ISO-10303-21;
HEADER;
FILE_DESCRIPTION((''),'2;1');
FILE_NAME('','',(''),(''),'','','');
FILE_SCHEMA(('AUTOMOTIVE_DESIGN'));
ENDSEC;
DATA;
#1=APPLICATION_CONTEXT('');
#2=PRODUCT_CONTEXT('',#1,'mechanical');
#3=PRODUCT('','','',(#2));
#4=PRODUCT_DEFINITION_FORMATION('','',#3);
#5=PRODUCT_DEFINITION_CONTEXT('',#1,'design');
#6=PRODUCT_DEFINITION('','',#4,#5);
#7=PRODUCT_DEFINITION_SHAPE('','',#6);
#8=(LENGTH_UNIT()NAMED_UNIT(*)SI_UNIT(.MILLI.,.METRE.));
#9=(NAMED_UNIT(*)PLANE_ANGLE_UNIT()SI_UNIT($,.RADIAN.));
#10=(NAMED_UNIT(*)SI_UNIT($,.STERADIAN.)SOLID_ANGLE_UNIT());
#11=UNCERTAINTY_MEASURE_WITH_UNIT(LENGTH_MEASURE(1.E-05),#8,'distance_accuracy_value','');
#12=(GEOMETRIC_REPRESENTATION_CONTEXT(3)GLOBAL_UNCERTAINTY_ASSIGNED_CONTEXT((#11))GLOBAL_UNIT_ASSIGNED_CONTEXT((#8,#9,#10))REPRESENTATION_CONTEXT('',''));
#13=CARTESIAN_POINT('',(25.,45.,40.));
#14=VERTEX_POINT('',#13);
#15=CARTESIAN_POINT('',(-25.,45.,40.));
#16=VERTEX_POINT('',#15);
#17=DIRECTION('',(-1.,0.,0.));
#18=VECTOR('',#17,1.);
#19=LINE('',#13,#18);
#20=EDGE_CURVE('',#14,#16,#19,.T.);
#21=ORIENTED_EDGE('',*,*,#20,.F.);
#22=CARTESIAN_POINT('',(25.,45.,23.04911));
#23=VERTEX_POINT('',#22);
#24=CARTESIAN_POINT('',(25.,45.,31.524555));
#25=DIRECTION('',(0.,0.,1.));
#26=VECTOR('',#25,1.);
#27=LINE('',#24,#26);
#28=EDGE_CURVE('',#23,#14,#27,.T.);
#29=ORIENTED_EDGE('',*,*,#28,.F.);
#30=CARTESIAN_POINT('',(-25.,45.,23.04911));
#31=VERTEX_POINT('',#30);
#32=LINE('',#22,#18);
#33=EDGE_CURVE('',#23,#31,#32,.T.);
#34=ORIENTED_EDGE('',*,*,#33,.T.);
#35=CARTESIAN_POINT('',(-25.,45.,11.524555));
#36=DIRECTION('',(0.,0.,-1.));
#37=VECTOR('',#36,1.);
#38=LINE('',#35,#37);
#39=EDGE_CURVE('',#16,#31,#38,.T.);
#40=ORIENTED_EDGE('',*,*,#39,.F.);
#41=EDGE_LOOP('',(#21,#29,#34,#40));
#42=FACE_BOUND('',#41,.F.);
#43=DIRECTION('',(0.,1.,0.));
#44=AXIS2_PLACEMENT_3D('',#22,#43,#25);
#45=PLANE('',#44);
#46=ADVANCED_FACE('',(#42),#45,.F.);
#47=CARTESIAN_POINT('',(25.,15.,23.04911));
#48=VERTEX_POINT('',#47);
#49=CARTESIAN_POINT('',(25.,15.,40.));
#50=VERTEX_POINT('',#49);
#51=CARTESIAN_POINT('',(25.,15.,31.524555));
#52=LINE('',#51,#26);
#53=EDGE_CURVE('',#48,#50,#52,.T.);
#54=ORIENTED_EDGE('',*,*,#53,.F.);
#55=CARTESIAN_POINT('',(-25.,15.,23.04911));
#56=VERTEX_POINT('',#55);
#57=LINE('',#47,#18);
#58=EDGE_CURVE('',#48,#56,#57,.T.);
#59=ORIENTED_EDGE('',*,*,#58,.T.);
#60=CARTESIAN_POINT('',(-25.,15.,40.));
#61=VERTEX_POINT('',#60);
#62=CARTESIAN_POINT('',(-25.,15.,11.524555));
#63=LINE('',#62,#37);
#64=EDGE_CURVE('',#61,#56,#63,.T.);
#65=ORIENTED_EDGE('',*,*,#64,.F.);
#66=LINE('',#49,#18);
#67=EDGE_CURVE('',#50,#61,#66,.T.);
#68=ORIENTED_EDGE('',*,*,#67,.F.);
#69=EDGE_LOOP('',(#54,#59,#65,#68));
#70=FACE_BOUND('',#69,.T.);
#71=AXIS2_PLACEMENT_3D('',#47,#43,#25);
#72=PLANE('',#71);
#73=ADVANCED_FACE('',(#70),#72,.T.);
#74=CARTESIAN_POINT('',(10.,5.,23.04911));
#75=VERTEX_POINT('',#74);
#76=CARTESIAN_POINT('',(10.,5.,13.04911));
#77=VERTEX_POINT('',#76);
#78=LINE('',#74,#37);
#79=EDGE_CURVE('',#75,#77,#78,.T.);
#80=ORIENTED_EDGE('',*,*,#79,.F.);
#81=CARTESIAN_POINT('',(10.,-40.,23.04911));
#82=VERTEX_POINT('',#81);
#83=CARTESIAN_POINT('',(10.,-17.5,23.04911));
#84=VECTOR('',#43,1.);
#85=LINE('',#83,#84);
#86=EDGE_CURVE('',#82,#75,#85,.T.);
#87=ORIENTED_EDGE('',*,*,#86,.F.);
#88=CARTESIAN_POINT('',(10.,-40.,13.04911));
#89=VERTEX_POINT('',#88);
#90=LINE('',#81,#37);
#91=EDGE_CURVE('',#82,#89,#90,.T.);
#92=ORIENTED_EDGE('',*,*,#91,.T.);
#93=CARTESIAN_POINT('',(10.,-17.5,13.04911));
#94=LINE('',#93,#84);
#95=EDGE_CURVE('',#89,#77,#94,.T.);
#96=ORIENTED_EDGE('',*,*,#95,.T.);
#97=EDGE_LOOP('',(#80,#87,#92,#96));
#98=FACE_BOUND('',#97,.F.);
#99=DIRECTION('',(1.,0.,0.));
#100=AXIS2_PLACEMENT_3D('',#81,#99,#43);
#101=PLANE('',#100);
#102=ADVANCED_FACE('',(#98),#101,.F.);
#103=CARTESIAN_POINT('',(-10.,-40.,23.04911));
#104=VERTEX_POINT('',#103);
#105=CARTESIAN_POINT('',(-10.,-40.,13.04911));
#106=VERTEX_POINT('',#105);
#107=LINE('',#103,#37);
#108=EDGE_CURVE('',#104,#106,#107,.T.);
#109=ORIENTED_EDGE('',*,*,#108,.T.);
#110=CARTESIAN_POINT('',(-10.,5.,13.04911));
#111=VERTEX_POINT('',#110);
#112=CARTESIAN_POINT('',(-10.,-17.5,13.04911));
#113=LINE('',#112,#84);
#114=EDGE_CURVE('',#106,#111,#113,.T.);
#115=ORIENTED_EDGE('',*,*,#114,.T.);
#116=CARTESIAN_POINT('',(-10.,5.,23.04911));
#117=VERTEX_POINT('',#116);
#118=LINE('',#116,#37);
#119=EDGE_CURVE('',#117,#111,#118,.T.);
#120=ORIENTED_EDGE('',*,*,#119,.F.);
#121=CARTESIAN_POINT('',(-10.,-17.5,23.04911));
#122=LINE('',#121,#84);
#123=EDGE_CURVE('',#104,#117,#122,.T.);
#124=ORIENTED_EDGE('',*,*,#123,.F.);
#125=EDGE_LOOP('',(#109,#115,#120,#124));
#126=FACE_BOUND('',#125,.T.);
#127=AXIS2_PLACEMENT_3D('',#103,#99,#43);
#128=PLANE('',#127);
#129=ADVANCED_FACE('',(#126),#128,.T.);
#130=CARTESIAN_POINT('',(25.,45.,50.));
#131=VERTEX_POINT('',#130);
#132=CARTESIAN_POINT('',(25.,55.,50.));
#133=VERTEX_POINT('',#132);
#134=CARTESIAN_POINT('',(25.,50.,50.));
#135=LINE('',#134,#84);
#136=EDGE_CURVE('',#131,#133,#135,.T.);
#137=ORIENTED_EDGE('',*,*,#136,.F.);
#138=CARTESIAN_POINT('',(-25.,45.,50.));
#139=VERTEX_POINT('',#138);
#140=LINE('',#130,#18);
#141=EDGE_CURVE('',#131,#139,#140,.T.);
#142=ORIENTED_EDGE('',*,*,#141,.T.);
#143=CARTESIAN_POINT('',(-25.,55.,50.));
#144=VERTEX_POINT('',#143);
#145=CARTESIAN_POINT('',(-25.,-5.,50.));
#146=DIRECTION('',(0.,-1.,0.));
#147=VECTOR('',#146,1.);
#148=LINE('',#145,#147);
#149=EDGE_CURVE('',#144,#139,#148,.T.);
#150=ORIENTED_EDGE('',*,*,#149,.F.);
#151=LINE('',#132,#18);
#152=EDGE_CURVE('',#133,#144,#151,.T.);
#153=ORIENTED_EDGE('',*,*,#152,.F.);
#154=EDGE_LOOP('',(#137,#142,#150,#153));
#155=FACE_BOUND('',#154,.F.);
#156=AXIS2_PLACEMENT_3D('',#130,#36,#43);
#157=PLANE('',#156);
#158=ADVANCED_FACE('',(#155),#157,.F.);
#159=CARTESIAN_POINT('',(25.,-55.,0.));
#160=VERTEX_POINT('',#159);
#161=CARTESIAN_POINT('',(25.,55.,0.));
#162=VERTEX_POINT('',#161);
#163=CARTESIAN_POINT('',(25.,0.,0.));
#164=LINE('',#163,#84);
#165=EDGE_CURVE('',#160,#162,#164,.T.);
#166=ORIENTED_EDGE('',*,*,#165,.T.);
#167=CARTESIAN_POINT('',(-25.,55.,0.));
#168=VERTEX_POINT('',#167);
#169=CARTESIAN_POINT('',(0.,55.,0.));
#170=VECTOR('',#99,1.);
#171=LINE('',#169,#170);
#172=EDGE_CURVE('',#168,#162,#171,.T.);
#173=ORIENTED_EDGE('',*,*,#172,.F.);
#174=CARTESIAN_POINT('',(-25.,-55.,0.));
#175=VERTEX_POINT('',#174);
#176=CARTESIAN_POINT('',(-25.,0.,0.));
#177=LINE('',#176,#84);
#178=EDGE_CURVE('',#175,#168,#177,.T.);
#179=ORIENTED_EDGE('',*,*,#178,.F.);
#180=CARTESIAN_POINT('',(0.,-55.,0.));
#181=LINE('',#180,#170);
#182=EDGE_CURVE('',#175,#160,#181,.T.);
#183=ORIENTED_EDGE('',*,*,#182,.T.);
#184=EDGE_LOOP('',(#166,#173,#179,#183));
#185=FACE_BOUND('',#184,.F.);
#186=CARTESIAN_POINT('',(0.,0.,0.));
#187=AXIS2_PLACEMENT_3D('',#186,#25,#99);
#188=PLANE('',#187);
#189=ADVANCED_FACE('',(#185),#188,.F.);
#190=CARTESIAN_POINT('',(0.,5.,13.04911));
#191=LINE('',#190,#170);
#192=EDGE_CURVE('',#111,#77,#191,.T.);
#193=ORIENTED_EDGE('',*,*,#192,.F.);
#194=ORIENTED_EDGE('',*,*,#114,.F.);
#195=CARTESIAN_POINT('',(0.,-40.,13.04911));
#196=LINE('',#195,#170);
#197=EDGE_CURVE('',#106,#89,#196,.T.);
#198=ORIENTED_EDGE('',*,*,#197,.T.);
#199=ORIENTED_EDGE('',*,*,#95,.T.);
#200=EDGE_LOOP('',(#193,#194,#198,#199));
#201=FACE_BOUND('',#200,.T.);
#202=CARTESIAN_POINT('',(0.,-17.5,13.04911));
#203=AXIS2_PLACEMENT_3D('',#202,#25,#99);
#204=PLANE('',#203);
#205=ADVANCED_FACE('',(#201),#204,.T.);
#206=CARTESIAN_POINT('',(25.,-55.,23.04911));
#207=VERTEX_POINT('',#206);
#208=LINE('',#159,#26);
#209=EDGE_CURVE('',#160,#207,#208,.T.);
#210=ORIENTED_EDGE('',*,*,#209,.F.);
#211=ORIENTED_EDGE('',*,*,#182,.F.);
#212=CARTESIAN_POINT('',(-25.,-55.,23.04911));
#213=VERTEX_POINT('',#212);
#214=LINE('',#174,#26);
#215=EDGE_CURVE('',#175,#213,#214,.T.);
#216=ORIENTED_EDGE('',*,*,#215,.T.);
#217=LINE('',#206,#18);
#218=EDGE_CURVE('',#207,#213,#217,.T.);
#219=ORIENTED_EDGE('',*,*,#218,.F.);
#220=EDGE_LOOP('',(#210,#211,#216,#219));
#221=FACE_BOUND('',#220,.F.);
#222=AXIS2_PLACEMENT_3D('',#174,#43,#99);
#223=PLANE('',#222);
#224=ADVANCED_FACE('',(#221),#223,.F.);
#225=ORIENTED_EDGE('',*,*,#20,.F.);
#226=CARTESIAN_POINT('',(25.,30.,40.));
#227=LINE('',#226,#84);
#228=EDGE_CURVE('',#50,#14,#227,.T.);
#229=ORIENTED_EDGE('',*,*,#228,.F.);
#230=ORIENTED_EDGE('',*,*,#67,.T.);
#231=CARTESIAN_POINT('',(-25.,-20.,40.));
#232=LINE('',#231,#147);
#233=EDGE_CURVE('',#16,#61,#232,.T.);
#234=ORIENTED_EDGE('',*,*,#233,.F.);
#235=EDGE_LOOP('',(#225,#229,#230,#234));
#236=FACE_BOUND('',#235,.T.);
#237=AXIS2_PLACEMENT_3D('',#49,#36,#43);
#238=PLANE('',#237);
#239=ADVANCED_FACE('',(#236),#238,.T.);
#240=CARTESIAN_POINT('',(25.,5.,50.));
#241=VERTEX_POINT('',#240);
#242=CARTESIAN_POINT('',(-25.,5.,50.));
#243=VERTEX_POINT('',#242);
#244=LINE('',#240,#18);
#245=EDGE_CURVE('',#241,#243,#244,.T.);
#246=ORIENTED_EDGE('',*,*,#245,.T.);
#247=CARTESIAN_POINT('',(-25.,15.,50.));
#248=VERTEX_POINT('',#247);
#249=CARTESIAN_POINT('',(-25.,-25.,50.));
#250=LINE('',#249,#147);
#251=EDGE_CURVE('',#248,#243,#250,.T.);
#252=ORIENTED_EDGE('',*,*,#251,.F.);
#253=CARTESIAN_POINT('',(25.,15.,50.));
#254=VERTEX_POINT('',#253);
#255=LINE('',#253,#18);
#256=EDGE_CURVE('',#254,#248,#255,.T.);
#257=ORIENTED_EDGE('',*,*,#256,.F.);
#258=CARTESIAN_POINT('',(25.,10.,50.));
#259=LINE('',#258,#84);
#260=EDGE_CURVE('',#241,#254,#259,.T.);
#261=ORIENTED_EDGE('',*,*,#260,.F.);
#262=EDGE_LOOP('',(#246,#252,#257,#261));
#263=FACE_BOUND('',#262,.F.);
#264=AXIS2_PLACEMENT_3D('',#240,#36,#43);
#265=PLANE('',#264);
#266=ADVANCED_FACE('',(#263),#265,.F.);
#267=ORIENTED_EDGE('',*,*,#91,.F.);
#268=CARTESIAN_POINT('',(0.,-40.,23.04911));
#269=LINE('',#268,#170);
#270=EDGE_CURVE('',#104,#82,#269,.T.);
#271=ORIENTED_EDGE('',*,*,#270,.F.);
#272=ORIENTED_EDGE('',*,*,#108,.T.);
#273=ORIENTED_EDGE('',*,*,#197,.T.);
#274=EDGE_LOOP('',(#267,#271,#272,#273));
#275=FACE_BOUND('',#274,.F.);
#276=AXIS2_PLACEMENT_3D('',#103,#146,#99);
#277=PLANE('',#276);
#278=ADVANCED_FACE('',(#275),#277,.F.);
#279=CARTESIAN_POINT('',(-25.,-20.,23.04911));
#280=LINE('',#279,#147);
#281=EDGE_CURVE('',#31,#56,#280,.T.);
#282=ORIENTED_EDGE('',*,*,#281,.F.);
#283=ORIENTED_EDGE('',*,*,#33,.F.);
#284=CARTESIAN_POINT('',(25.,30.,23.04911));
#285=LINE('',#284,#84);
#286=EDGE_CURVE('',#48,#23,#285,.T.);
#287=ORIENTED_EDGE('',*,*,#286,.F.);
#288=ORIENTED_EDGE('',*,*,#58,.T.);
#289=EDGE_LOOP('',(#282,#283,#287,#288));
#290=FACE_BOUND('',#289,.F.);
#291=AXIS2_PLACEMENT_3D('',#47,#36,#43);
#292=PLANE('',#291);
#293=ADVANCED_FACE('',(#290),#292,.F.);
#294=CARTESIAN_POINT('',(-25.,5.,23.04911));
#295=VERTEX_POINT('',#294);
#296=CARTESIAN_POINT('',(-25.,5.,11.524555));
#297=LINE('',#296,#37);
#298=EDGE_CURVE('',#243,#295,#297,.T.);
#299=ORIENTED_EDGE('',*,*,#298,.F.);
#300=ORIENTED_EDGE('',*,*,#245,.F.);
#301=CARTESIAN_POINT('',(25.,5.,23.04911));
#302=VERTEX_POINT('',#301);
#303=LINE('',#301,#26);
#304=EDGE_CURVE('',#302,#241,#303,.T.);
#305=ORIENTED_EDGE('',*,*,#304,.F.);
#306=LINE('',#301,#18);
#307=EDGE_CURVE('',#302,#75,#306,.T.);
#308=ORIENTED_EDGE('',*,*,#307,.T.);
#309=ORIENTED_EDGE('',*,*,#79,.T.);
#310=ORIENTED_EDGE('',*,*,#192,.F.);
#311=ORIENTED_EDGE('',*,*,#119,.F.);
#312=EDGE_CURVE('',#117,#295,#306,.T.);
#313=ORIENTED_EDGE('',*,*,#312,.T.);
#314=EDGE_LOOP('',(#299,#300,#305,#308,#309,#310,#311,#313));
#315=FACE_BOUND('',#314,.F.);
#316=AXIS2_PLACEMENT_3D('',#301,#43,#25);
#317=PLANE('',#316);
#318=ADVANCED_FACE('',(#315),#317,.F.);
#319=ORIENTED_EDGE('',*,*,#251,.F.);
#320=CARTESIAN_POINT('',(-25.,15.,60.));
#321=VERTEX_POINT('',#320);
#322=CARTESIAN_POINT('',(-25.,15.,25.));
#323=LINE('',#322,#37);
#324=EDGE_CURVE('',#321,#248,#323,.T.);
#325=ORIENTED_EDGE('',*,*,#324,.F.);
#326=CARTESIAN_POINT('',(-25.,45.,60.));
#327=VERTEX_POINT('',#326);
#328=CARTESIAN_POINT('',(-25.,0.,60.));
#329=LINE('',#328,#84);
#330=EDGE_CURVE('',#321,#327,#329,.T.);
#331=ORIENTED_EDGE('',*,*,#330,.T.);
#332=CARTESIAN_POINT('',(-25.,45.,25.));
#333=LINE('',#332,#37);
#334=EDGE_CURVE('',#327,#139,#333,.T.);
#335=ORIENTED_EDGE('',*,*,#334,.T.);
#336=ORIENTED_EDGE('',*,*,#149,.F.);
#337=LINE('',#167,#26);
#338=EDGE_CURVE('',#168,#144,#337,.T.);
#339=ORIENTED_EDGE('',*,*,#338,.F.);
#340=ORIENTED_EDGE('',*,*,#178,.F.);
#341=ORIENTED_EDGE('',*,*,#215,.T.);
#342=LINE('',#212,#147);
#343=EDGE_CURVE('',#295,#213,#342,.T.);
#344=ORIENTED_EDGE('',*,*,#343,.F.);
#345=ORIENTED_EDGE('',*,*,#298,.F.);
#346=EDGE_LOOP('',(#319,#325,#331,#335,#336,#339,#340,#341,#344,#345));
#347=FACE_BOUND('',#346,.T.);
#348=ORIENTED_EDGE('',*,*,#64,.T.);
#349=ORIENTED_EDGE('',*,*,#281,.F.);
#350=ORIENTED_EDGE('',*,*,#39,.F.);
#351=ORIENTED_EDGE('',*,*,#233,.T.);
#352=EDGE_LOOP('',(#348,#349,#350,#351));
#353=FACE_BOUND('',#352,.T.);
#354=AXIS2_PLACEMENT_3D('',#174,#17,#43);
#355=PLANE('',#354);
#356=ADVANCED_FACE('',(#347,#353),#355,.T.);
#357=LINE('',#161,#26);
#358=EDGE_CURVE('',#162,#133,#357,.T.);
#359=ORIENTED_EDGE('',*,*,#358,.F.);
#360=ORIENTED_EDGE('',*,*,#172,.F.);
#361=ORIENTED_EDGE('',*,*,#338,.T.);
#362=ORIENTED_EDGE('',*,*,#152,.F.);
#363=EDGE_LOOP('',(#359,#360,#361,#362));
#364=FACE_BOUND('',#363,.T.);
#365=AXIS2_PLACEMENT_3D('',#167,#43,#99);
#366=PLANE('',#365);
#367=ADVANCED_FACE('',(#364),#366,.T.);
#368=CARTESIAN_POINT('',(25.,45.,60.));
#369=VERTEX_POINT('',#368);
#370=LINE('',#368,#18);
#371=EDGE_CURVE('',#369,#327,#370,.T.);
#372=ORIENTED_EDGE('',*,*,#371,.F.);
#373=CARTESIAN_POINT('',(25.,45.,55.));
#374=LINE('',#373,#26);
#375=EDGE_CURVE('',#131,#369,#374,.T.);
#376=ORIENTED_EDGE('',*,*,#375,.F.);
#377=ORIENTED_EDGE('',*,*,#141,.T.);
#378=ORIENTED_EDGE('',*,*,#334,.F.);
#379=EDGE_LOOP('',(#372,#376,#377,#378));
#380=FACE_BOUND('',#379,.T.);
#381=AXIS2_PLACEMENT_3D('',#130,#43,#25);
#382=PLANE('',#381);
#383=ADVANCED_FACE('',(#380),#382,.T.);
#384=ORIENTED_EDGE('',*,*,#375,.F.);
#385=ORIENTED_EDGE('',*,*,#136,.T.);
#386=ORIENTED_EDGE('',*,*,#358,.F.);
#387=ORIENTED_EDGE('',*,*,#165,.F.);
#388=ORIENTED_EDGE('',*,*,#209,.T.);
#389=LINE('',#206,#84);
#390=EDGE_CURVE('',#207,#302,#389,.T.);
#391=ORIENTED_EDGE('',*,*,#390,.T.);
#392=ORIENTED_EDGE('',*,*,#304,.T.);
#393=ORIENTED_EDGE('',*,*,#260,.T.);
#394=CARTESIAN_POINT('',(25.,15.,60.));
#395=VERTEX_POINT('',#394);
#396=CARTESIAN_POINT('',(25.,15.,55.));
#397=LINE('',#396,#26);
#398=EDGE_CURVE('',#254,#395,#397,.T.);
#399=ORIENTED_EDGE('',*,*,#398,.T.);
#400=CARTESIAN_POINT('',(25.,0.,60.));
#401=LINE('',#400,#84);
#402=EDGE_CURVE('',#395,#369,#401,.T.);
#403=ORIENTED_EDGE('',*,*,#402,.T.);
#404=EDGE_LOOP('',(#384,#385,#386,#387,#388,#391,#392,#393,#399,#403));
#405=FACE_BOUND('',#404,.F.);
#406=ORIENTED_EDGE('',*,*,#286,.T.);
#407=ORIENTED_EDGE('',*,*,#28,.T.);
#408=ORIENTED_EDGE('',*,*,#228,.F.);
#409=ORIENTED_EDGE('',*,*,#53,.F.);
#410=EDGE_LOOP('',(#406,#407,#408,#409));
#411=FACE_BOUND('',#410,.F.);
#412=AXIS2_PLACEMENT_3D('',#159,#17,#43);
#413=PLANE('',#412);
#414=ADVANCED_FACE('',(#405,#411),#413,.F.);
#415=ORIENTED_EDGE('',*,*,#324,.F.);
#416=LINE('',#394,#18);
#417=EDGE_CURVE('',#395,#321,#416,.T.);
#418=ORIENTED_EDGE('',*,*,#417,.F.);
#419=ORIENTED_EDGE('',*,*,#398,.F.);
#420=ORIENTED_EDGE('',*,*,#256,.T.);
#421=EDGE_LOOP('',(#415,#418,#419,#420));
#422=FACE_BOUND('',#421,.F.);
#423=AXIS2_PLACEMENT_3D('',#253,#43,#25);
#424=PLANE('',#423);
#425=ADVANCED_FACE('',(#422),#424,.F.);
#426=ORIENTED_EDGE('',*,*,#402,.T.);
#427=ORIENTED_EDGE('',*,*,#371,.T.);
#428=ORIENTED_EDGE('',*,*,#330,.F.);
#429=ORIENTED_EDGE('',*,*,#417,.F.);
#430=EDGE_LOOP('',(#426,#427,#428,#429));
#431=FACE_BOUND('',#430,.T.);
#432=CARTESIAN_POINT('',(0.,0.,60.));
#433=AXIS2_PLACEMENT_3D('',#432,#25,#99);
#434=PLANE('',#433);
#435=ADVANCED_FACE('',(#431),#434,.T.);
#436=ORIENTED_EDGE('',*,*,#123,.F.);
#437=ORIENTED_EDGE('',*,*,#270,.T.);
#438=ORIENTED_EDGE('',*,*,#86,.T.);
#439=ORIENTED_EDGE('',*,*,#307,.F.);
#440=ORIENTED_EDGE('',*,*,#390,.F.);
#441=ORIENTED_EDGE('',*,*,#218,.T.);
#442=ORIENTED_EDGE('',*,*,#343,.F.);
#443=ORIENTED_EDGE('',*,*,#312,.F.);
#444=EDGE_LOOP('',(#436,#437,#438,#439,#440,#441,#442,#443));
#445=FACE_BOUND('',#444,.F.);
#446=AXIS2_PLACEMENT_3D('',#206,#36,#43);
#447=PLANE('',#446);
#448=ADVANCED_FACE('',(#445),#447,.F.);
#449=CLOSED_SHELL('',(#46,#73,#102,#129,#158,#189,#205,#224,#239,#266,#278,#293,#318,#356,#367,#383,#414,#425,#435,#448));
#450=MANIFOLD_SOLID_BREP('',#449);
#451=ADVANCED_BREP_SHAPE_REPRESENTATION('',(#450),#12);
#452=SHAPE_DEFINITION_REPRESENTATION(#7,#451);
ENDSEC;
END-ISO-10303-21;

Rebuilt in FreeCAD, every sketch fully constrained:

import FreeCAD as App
import Part
import Sketcher

V = App.Vector


def add_polygon(sketch, points):
    """Adds a closed chain of lines whose ends are joined by coincident constraints."""
    first, n = sketch.GeometryCount, len(points)
    for a, b in zip(points, points[1:] + points[:1]):
        sketch.addGeometry(Part.LineSegment(App.Vector(*a, 0), App.Vector(*b, 0)), False)
    for i in range(n):
        sketch.addConstraint(Sketcher.Constraint("Coincident", first + i, 2, first + (i + 1) % n, 1))

doc = App.newDocument("Part")
body = doc.addObject("PartDesign::Body", "Body")

sketch1 = body.newObject("Sketcher::SketchObject", "Sketch")
sketch1.AttachmentSupport = (doc.getObject("XY_Plane"), [""])
sketch1.MapMode = "FlatFace"
add_polygon(sketch1, [(-25, 55), (-25, -55), (25, -55), (25, 55)])
sketch1.addConstraint([
    Sketcher.Constraint("Vertical", 0),
    Sketcher.Constraint("Horizontal", 1),
    Sketcher.Constraint("Vertical", 2),
    Sketcher.Constraint("Horizontal", 3),
    Sketcher.Constraint("Symmetric", 0, 2, 2, 2, -1, 1),
    Sketcher.Constraint("DistanceX", 1, 1, 1, 2, 50.0),
    Sketcher.Constraint("DistanceY", 0, 2, 0, 1, 110.0),
])
pad1 = body.newObject("PartDesign::Pad", "Pad")
pad1.Profile = sketch1
pad1.Length = 60

sketch2 = body.newObject("Sketcher::SketchObject", "Sketch001")
sketch2.AttachmentSupport = (doc.getObject("YZ_Plane"), [""])
sketch2.MapMode = "FlatFace"
sketch2.AttachmentOffset = App.Placement(V(0, 0, 25), App.Rotation())
add_polygon(sketch2, [(15, 40), (15, 23), (45, 23), (45, 40)])
add_polygon(sketch2, [(45, 60), (45, 50), (55, 50), (55, 60)])
add_polygon(sketch2, [(5, 50), (15, 50), (15, 60), (-55, 60), (-55, 23), (5, 23)])
sketch2.addConstraint([
    Sketcher.Constraint("Vertical", 0),
    Sketcher.Constraint("Horizontal", 1),
    Sketcher.Constraint("Vertical", 2),
    Sketcher.Constraint("Horizontal", 3),
    Sketcher.Constraint("Vertical", 4),
    Sketcher.Constraint("Horizontal", 5),
    Sketcher.Constraint("Vertical", 6),
    Sketcher.Constraint("Horizontal", 7),
    Sketcher.Constraint("Horizontal", 8),
    Sketcher.Constraint("Vertical", 9),
    Sketcher.Constraint("Horizontal", 10),
    Sketcher.Constraint("Vertical", 11),
    Sketcher.Constraint("Horizontal", 12),
    Sketcher.Constraint("Vertical", 13),
    Sketcher.Constraint("Symmetric", 6, 2, 10, 2, -2),
    Sketcher.Constraint("Horizontal", 5, 2, 8, 2),
    Sketcher.Constraint("Horizontal", 1, 2, 11, 2),
    Sketcher.Constraint("Vertical", 2, 2, 4, 2),
    Sketcher.Constraint("Vertical", 3, 2, 8, 2),
    Sketcher.Constraint("Equal", 7, 8),
    Sketcher.Constraint("Equal", 8, 4),
    Sketcher.Constraint("DistanceX", 1, 1, 1, 2, 30.0),
    Sketcher.Constraint("DistanceX", 5, 1, 5, 2, 10.0),
    Sketcher.Constraint("DistanceX", 10, 2, 10, 1, 70.0),
    Sketcher.Constraint("DistanceY", -1, 1, 2, 2, 40.0),
    Sketcher.Constraint("DistanceY", -1, 1, 4, 2, 50.0),
    Sketcher.Constraint("DistanceY", 0, 2, 0, 1, 16.95089),
])
pocket1 = body.newObject("PartDesign::Pocket", "Pocket")
pocket1.Profile = sketch2
pocket1.Type = "ThroughAll"

sketch3 = body.newObject("Sketcher::SketchObject", "Sketch002")
sketch3.AttachmentSupport = (doc.getObject("XY_Plane"), [""])
sketch3.MapMode = "FlatFace"
sketch3.AttachmentOffset = App.Placement(V(0, 0, 23.04911), App.Rotation())
add_polygon(sketch3, [(-10, 5), (-10, -40), (10, -40), (10, 5)])
sketch3.addConstraint([
    Sketcher.Constraint("Vertical", 0),
    Sketcher.Constraint("Horizontal", 1),
    Sketcher.Constraint("Vertical", 2),
    Sketcher.Constraint("Horizontal", 3),
    Sketcher.Constraint("DistanceX", 1, 1, 1, 2, 20.0),
    Sketcher.Constraint("DistanceY", 0, 2, 0, 1, 45.0),
    Sketcher.Constraint("DistanceX", 0, 2, -1, 1, 10.0),
    Sketcher.Constraint("DistanceY", 0, 2, -1, 1, 40.0),
])
pocket2 = body.newObject("PartDesign::Pocket", "Pocket001")
pocket2.Profile = sketch3
pocket2.Length = 10

doc.recompute()
